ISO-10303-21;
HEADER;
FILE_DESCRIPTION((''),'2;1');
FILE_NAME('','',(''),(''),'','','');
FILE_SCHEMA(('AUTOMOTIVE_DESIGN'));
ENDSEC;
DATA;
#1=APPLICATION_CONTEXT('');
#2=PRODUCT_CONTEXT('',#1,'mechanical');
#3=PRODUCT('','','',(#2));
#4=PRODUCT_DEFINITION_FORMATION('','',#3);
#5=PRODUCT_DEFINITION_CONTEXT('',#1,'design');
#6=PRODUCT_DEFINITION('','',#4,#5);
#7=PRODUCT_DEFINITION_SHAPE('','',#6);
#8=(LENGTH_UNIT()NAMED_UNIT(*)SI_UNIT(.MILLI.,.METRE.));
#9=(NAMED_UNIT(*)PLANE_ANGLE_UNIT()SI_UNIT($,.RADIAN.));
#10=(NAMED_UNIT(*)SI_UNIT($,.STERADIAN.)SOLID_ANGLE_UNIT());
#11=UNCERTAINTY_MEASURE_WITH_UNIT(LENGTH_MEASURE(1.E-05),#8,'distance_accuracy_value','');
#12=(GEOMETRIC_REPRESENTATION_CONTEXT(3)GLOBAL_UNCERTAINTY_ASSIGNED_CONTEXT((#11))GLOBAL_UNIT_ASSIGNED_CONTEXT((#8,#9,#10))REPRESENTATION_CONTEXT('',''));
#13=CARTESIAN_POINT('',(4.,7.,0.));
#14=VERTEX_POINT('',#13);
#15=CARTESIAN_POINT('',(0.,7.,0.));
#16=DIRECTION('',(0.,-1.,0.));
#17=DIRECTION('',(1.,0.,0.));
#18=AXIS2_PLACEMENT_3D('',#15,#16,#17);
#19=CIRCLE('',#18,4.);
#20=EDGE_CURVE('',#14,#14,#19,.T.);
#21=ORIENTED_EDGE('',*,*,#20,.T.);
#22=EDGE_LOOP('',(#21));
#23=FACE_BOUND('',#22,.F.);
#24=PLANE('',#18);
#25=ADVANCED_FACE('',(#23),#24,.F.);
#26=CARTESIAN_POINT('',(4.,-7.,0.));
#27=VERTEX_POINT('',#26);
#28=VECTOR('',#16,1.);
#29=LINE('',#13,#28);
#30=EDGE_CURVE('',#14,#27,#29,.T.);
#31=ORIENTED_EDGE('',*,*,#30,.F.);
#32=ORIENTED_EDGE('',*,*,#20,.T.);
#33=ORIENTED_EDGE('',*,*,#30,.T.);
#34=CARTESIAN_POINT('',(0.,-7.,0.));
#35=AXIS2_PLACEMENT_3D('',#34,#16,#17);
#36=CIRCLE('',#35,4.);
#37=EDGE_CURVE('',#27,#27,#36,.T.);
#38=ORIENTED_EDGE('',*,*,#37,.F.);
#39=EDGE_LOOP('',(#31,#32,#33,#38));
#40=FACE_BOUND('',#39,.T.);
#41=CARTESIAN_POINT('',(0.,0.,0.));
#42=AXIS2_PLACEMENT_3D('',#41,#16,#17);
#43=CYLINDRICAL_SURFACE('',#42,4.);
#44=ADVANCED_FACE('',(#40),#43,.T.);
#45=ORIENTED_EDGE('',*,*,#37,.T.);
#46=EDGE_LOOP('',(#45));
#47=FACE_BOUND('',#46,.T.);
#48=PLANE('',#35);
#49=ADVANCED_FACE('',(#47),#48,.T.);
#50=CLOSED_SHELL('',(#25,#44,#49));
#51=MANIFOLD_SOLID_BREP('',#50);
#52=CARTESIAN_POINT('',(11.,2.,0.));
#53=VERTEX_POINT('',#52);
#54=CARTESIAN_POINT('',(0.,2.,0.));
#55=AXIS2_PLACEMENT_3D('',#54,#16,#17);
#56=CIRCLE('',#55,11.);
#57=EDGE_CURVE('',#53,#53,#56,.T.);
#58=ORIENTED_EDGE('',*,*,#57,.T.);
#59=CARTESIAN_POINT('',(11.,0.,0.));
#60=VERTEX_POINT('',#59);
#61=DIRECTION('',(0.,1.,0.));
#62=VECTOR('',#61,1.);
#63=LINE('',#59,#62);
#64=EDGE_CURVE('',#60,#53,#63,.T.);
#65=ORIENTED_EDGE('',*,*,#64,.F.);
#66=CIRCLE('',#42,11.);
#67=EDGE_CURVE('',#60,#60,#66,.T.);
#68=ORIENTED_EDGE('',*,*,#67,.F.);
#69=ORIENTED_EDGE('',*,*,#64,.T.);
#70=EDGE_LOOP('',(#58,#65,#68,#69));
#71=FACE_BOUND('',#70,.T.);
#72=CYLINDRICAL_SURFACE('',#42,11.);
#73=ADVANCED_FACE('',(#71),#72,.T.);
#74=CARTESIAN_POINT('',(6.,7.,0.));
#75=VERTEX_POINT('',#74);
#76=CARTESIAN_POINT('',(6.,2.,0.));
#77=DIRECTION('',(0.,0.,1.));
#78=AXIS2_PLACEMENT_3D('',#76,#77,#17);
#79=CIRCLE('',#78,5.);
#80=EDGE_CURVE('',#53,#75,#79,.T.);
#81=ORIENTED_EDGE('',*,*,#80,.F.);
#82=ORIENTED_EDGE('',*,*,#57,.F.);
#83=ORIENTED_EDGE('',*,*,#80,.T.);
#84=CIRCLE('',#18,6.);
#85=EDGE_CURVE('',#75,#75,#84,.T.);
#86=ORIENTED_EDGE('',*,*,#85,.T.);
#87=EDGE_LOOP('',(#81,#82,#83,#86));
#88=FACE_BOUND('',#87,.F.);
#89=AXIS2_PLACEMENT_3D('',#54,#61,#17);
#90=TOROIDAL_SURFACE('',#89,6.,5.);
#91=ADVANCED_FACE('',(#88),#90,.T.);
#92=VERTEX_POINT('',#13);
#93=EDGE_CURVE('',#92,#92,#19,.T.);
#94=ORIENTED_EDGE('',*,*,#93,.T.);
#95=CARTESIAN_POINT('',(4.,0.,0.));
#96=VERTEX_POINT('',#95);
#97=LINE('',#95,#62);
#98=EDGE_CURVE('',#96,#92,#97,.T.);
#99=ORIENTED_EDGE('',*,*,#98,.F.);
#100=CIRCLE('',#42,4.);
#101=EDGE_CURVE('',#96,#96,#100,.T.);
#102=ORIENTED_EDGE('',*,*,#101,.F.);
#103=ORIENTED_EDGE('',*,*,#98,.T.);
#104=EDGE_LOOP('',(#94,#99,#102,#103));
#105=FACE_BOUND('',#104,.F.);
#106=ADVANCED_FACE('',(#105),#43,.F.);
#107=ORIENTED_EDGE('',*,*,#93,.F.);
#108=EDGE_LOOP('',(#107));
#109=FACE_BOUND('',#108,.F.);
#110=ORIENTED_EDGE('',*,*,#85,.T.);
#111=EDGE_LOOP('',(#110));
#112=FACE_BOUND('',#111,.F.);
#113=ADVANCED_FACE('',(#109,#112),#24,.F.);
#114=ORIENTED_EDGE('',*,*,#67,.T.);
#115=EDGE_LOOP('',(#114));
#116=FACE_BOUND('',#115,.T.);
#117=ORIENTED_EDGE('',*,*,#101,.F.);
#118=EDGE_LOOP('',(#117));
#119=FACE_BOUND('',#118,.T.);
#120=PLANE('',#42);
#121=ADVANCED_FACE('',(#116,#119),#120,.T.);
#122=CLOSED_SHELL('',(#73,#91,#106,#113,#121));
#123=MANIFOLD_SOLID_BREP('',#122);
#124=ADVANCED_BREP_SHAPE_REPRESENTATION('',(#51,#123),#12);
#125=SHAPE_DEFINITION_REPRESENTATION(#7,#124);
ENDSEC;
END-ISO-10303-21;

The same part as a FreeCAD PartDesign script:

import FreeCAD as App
import Part
import Sketcher

V = App.Vector


def edges_at(feature, points):
    """Names of the edges that pass closest to the given points."""
    edges = feature.Shape.Edges
    near = lambda p: min(range(len(edges)), key=lambda i: edges[i].distToShape(Part.Vertex(*p))[0])
    return sorted({f"Edge{near(p) + 1}" for p in points})

doc = App.newDocument("Part")
params = doc.addObject("Spreadsheet::Sheet", "Params")
for row, (alias, value) in enumerate([
    ("sketch1_diameter", "8 mm"),
    ("pad1_length", "14 mm"),
    ("sketch2_diameter", "22 mm"),
    ("sketch2_diameter2", "8 mm"),
    ("pad2_length", "7 mm"),
    ("fillet_radius", "5 mm"),
], start=1):
    params.set(f"A{row}", alias)
    params.set(f"B{row}", "=" + value)
    params.setAlias(f"B{row}", alias)

body = doc.addObject("PartDesign::Body", "Body")

sketch1 = body.newObject("Sketcher::SketchObject", "Sketch")
sketch1.AttachmentSupport = (doc.getObject("XZ_Plane"), [""])
sketch1.MapMode = "FlatFace"
sketch1.addGeometry(Part.Circle(V(0, 0, 0), V(0, 0, 1), 4), False)
sketch1.addConstraint(Sketcher.Constraint("Coincident", 0, 3, -1, 1))
sketch1.addConstraint(Sketcher.Constraint("Diameter", 0, 8.0))
sketch1.setExpression("Constraints[1]", "Params.sketch1_diameter")
pad1 = body.newObject("PartDesign::Pad", "Pad")
pad1.Profile = sketch1
pad1.setExpression("Length", "Params.pad1_length")
pad1.Midplane = True
body2 = doc.addObject("PartDesign::Body", "Body001")

sketch2 = body2.newObject("Sketcher::SketchObject", "Sketch001")
sketch2.AttachmentSupport = (doc.getObject("XZ_Plane001"), [""])
sketch2.MapMode = "FlatFace"
sketch2.addGeometry(Part.Circle(V(0, 0, 0), V(0, 0, 1), 11), False)
sketch2.addGeometry(Part.Circle(V(0, 0, 0), V(0, 0, 1), 4), False)
sketch2.addConstraint(Sketcher.Constraint("Coincident", 0, 3, -1, 1))
sketch2.addConstraint(Sketcher.Constraint("Coincident", 1, 3, -1, 1))
sketch2.addConstraint(Sketcher.Constraint("Diameter", 0, 22.0))
sketch2.addConstraint(Sketcher.Constraint("Diameter", 1, 8.0))
sketch2.setExpression("Constraints[2]", "Params.sketch2_diameter")
sketch2.setExpression("Constraints[3]", "Params.sketch2_diameter2")
pad2 = body2.newObject("PartDesign::Pad", "Pad001")
pad2.Profile = sketch2
pad2.setExpression("Length", "Params.pad2_length")
pad2.Reversed = True
doc.recompute()

fillet = body2.newObject("PartDesign::Fillet", "Fillet")
fillet.Base = (pad2, edges_at(pad2, [(-11, 7, 0)]))
fillet.setExpression("Radius", "Params.fillet_radius")

doc.recompute()
